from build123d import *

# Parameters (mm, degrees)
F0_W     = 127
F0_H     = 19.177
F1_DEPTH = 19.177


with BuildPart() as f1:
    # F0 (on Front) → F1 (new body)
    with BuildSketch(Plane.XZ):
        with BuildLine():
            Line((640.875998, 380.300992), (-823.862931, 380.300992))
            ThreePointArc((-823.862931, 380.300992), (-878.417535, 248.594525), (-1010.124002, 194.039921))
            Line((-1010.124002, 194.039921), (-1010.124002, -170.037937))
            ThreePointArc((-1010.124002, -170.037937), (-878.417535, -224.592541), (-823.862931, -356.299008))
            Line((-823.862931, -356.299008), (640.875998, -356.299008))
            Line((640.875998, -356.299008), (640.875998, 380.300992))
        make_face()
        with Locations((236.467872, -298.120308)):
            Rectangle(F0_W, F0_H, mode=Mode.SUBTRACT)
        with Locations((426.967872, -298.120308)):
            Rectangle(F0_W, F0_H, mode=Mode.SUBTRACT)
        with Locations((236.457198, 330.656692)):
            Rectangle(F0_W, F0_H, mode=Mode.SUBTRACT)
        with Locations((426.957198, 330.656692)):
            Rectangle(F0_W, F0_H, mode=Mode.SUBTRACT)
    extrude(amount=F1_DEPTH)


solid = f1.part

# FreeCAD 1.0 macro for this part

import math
import FreeCAD as App
import Part
import Sketcher

V = App.Vector
Q = App.Units.Quantity


def add_polygon(sketch, points):
    """Adds a closed chain of lines whose ends are joined by coincident constraints."""
    first, n = sketch.GeometryCount, len(points)
    for a, b in zip(points, points[1:] + points[:1]):
        sketch.addGeometry(Part.LineSegment(App.Vector(*a, 0), App.Vector(*b, 0)), False)
    for i in range(n):
        sketch.addConstraint(Sketcher.Constraint("Coincident", first + i, 2, first + (i + 1) % n, 1))

doc = App.newDocument("Part")
body = doc.addObject("PartDesign::Body", "Body")

# Sketch on XZ plane
sketch1 = body.newObject("Sketcher::SketchObject", "Sketch")
sketch1.AttachmentSupport = (doc.getObject("XZ_Plane"), [""])
sketch1.MapMode = "FlatFace"
sketch1.addGeometry(Part.LineSegment(V(640.875998, 380.300992, 0), V(-823.862931, 380.300992, 0)), False)  # 0
sketch1.addGeometry(Part.ArcOfCircle(Part.Circle(V(-1010.124, 380.30099, 0), V(0, 0, 1), 186.261069), math.radians(-90.000001), math.radians(0.000001)), False)  # 1
sketch1.addGeometry(Part.LineSegment(V(-1010.124002, 194.039921, 0), V(-1010.124002, -170.037937, 0)), False)  # 2
sketch1.addGeometry(Part.ArcOfCircle(Part.Circle(V(-1010.124, -356.299006, 0), V(0, 0, 1), 186.261069), math.radians(-0.000001), math.radians(90.000001)), False)  # 3
sketch1.addGeometry(Part.LineSegment(V(-823.862931, -356.299008, 0), V(640.875998, -356.299008, 0)), False)  # 4
sketch1.addGeometry(Part.LineSegment(V(640.875998, -356.299008, 0), V(640.875998, 380.300992, 0)), False)  # 5
add_polygon(sketch1, [(299.967872, -307.708808), (172.967872, -307.708808), (172.967872, -288.531808), (299.967872, -288.531808)])  # lines 6-9
add_polygon(sketch1, [(490.467872, -307.708808), (363.467872, -307.708808), (363.467872, -288.531808), (490.467872, -288.531808)])  # lines 10-13
add_polygon(sketch1, [(299.957198, 321.068192), (172.957198, 321.068192), (172.957198, 340.245192), (299.957198, 340.245192)])  # lines 14-17
add_polygon(sketch1, [(490.457198, 321.068192), (363.457198, 321.068192), (363.457198, 340.245192), (490.457198, 340.245192)])  # lines 18-21
sketch1.addConstraint([
    Sketcher.Constraint("Coincident", 0, 2, 1, 2),
    Sketcher.Constraint("Coincident", 1, 1, 2, 1),
    Sketcher.Constraint("Coincident", 2, 2, 3, 2),
    Sketcher.Constraint("Coincident", 3, 1, 4, 1),
    Sketcher.Constraint("Coincident", 4, 2, 5, 1),
    Sketcher.Constraint("Coincident", 5, 2, 0, 1),
    Sketcher.Constraint("Horizontal", 0),
    Sketcher.Constraint("Vertical", 2),
    Sketcher.Constraint("Horizontal", 4),
    Sketcher.Constraint("Vertical", 5),
    Sketcher.Constraint("Horizontal", 6),
    Sketcher.Constraint("Vertical", 7),
    Sketcher.Constraint("Horizontal", 8),
    Sketcher.Constraint("Vertical", 9),
    Sketcher.Constraint("Horizontal", 10),
    Sketcher.Constraint("Vertical", 11),
    Sketcher.Constraint("Horizontal", 12),
    Sketcher.Constraint("Vertical", 13),
    Sketcher.Constraint("Horizontal", 14),
    Sketcher.Constraint("Vertical", 15),
    Sketcher.Constraint("Horizontal", 16),
    Sketcher.Constraint("Vertical", 17),
    Sketcher.Constraint("Horizontal", 18),
    Sketcher.Constraint("Vertical", 19),
    Sketcher.Constraint("Horizontal", 20),
    Sketcher.Constraint("Vertical", 21),
    Sketcher.Constraint("Equal", 1, 3),
    Sketcher.Constraint("Horizontal", 9, 2, 10, 2),
    Sketcher.Constraint("Horizontal", 8, 2, 11, 2),
    Sketcher.Constraint("Horizontal", 17, 2, 18, 2),
    Sketcher.Constraint("Horizontal", 16, 2, 19, 2),
    Sketcher.Constraint("Vertical", 1, 3, 3, 3),
    Sketcher.Constraint("Equal", 8, 10),
    Sketcher.Constraint("Equal", 12, 14),
    Sketcher.Constraint("Equal", 16, 18),
    Sketcher.Constraint("Equal", 13, 15),
    Sketcher.Constraint("DistanceX", 6, 2, 6, 1, Q("5 in")),
    Sketcher.Constraint("DistanceY", 5, 1, 5, 2, Q("29 in")),
    Sketcher.Constraint("DistanceY", 3, 3, 1, 3, Q("28.9999998 in")),
    Sketcher.Constraint("DistanceY", 3, 3, 0, 2, Q("28.9999999 in")),
    Sketcher.Constraint("DistanceX", 3, 3, 4, 2, Q("64.9999999 in")),
    Sketcher.Constraint("DistanceX", 2, 2, 4, 2, Q("65 in")),
    Sketcher.Constraint("DistanceY", 7, 2, 14, 2, Q("24 in")),
    Sketcher.Constraint("DistanceX", 9, 2, 10, 2, Q("2.5 in")),
    Sketcher.Constraint("DistanceX", 17, 2, 18, 2, Q("2.5 in")),
    Sketcher.Constraint("DistanceY", 7, 1, 7, 2, Q("0.755 in")),
    Sketcher.Constraint("Radius", 1, Q("186.261069 mm")),
    Sketcher.Constraint("DistanceY", 4, 2, 6, 2, Q("1.913 in")),
    Sketcher.Constraint("DistanceX", 14, 2, 5, 2, Q("18.422 in")),
    Sketcher.Constraint("DistanceX", 1, 3, -1, 1, Q("1010.124 mm")),
    Sketcher.Constraint("DistanceY", -1, 1, 1, 3, Q("380.30099 mm")),
    Sketcher.Constraint("DistanceX", -1, 1, 6, 2, Q("172.967872 mm")),
])
pad1 = body.newObject("PartDesign::Pad", "Pad")
pad1.Profile = sketch1
pad1.Length = Q("0.755 in")

doc.recompute()
